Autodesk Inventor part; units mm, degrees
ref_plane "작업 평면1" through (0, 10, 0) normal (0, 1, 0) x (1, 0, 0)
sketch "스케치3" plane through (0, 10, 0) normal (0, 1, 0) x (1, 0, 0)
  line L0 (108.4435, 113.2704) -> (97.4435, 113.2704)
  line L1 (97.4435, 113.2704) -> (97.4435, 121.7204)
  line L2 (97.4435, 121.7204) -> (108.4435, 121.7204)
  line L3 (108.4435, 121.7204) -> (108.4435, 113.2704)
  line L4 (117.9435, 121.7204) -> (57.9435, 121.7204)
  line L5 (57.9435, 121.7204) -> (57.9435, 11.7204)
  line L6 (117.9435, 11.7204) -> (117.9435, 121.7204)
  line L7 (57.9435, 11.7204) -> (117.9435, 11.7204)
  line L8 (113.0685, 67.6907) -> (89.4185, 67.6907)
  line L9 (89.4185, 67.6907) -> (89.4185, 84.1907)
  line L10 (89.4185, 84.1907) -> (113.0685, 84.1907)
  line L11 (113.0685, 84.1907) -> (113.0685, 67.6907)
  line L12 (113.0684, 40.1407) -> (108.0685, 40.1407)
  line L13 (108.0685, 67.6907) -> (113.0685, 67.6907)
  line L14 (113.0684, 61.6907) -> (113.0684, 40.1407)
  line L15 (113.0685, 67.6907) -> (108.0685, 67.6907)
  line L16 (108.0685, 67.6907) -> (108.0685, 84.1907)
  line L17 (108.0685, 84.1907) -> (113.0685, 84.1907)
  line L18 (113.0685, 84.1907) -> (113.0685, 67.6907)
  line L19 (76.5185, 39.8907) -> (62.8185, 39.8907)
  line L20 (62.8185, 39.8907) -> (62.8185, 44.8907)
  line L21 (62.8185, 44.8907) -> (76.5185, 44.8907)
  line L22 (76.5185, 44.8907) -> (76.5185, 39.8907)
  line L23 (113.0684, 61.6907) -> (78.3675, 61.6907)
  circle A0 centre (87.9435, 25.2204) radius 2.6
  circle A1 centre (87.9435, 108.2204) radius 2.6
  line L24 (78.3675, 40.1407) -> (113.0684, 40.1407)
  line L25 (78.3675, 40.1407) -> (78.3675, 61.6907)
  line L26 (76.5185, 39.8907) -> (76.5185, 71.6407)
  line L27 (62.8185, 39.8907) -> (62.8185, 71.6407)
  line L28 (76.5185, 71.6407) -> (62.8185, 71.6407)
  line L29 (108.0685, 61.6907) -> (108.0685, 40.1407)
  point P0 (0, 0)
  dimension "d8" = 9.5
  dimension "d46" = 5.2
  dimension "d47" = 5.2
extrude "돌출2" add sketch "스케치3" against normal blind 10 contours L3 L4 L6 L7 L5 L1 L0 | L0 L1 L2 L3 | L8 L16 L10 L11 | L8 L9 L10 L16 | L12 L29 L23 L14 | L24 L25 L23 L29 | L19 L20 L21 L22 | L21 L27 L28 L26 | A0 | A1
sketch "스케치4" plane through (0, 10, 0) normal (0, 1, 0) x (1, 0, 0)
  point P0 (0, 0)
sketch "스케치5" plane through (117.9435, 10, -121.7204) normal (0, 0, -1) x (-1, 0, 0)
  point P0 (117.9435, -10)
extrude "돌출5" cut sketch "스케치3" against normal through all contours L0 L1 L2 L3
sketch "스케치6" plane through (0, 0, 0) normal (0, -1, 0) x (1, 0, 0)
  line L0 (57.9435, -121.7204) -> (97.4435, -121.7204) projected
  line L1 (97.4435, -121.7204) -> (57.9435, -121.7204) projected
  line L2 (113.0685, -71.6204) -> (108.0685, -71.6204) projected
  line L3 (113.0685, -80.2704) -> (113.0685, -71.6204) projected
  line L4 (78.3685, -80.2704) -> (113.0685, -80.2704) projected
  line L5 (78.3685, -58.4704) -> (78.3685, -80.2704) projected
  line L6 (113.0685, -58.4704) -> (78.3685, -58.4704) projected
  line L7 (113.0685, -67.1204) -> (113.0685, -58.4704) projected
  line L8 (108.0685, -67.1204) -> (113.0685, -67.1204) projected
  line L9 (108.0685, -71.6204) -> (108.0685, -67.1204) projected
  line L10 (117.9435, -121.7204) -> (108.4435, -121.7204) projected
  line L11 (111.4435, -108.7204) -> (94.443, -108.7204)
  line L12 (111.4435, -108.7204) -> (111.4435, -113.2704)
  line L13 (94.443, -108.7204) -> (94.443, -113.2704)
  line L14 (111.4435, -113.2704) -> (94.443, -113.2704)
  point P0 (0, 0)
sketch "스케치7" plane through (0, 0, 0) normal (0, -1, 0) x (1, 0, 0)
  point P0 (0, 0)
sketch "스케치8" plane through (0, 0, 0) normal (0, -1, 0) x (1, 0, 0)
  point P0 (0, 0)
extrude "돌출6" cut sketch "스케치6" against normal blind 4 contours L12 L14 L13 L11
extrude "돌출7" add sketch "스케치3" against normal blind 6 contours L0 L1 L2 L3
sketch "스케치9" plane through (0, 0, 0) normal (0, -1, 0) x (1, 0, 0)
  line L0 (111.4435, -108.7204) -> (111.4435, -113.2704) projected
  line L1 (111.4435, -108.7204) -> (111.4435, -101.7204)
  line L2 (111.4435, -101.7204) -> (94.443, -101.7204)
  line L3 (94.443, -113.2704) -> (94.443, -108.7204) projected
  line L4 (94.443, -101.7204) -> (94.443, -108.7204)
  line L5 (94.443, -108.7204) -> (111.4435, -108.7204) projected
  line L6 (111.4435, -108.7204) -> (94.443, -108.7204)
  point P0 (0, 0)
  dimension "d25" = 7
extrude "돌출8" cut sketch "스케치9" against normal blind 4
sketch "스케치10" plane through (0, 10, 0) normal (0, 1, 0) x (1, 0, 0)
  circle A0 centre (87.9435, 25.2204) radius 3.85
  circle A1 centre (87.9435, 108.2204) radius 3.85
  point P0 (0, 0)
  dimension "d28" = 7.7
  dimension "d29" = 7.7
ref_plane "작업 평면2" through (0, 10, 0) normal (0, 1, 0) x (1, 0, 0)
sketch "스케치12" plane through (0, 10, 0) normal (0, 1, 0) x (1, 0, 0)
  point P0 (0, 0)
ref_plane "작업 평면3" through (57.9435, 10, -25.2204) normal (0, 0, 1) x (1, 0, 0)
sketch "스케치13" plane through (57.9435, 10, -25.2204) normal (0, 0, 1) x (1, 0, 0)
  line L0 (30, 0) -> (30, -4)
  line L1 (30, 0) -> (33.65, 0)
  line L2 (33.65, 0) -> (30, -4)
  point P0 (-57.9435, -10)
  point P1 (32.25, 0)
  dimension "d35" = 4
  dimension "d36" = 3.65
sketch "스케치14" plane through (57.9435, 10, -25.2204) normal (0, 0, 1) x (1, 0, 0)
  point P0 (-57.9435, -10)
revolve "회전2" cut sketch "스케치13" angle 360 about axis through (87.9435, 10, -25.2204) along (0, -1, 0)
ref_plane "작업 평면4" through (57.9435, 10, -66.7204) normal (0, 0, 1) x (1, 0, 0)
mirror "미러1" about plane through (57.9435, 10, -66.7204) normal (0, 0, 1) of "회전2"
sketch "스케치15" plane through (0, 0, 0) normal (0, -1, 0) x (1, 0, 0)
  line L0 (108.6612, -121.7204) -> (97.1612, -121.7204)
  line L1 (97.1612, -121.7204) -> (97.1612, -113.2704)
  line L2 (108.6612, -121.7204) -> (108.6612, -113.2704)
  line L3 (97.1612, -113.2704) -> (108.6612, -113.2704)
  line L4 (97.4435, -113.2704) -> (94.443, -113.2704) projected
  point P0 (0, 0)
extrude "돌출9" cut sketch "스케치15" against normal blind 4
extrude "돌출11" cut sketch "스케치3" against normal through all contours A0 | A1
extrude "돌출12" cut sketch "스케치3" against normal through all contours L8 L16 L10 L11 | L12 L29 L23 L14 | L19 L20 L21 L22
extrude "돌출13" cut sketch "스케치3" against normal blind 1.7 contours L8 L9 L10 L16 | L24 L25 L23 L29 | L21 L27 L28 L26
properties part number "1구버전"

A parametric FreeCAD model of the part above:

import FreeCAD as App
import Part
import Sketcher
from FreeCAD import Vector


def add_polygon(sketch, points):
    """Adds a closed chain of lines whose ends are joined by coincident constraints."""
    first, n = sketch.GeometryCount, len(points)
    for a, b in zip(points, points[1:] + points[:1]):
        sketch.addGeometry(Part.LineSegment(App.Vector(*a, 0), App.Vector(*b, 0)), False)
    for i in range(n):
        sketch.addConstraint(Sketcher.Constraint("Coincident", first + i, 2, first + (i + 1) % n, 1))

doc = App.newDocument("Part")
body = doc.addObject("PartDesign::Body", "Body")

sketch1 = body.newObject("Sketcher::SketchObject", "Sketch")
sketch1.AttachmentSupport = (doc.getObject("XZ_Plane"), [""])
sketch1.MapMode = "FlatFace"
sketch1.AttachmentOffset = App.Placement(Vector(0, 0, -10), App.Rotation())
add_polygon(sketch1, [(118, -122), (58, -122), (58, -12), (118, -12)])
sketch1.addConstraint([
    Sketcher.Constraint("Horizontal", 0),
    Sketcher.Constraint("Vertical", 1),
    Sketcher.Constraint("Horizontal", 2),
    Sketcher.Constraint("Vertical", 3),
    Sketcher.Constraint("DistanceX", 0, 2, 0, 1, 60.0),
    Sketcher.Constraint("DistanceY", 1, 1, 1, 2, 110.0),
    Sketcher.Constraint("DistanceX", -1, 1, 0, 2, 57.9435),
    Sketcher.Constraint("DistanceY", 0, 2, -1, 1, 121.7204),
])
pad1 = body.newObject("PartDesign::Pad", "Pad")
pad1.Profile = sketch1
pad1.Length = 10

sketch2 = body.newObject("Sketcher::SketchObject", "Sketch001")
sketch2.AttachmentSupport = (doc.getObject("XZ_Plane"), [""])
sketch2.MapMode = "FlatFace"
sketch2.AttachmentOffset = App.Placement(Vector(0, 0, -10), App.Rotation())
add_polygon(sketch2, [(97, -113), (108, -113), (108, -122), (97, -122)])
sketch2.addConstraint([
    Sketcher.Constraint("Horizontal", 0),
    Sketcher.Constraint("Vertical", 1),
    Sketcher.Constraint("Horizontal", 2),
    Sketcher.Constraint("Vertical", 3),
    Sketcher.Constraint("DistanceX", 0, 1, 0, 2, 11.0),
    Sketcher.Constraint("DistanceY", 1, 2, 1, 1, 8.45),
    Sketcher.Constraint("DistanceX", -1, 1, 0, 2, 108.4435),
    Sketcher.Constraint("DistanceY", 0, 2, -1, 1, 113.2704),
])
pocket1 = body.newObject("PartDesign::Pocket", "Pocket")
pocket1.Profile = sketch2
pocket1.Type = "ThroughAll"
pocket1.Reversed = True

sketch3 = body.newObject("Sketcher::SketchObject", "Sketch002")
sketch3.AttachmentSupport = (doc.getObject("XZ_Plane"), [""])
sketch3.MapMode = "FlatFace"
add_polygon(sketch3, [(111.4, -113.3), (111.4, -108.7), (94.4, -108.7), (94.4, -113.3)])
sketch3.addConstraint([
    Sketcher.Constraint("Vertical", 0),
    Sketcher.Constraint("Horizontal", 1),
    Sketcher.Constraint("Vertical", 2),
    Sketcher.Constraint("Horizontal", 3),
    Sketcher.Constraint("DistanceY", 0, 1, 0, 2, 4.55),
    Sketcher.Constraint("DistanceX", 1, 2, 1, 1, 17.0005),
    Sketcher.Constraint("DistanceX", -1, 1, 1, 2, 94.443),
    Sketcher.Constraint("DistanceY", 0, 2, -1, 1, 108.7204),
])
pocket2 = body.newObject("PartDesign::Pocket", "Pocket001")
pocket2.Profile = sketch3
pocket2.Length = 4

sketch4 = body.newObject("Sketcher::SketchObject", "Sketch003")
sketch4.AttachmentSupport = (doc.getObject("XZ_Plane"), [""])
sketch4.MapMode = "FlatFace"
sketch4.AttachmentOffset = App.Placement(Vector(0, 0, -10), App.Rotation())
add_polygon(sketch4, [(97, -113), (108, -113), (108, -122), (97, -122)])
sketch4.addConstraint([
    Sketcher.Constraint("Horizontal", 0),
    Sketcher.Constraint("Vertical", 1),
    Sketcher.Constraint("Horizontal", 2),
    Sketcher.Constraint("Vertical", 3),
    Sketcher.Constraint("DistanceX", 0, 1, 0, 2, 11.0),
    Sketcher.Constraint("DistanceY", 1, 2, 1, 1, 8.45),
    Sketcher.Constraint("DistanceX", -1, 1, 0, 2, 108.4435),
    Sketcher.Constraint("DistanceY", 0, 2, -1, 1, 113.2704),
])
pad2 = body.newObject("PartDesign::Pad", "Pad001")
pad2.Profile = sketch4
pad2.Length = 6

sketch5 = body.newObject("Sketcher::SketchObject", "Sketch004")
sketch5.AttachmentSupport = (doc.getObject("XZ_Plane"), [""])
sketch5.MapMode = "FlatFace"
add_polygon(sketch5, [(94, -109), (111, -109), (111, -102), (94, -102)])
sketch5.addConstraint([
    Sketcher.Constraint("Horizontal", 0),
    Sketcher.Constraint("Vertical", 1),
    Sketcher.Constraint("Horizontal", 2),
    Sketcher.Constraint("Vertical", 3),
    Sketcher.Constraint("DistanceY", 1, 1, 1, 2, 7.0),
    Sketcher.Constraint("DistanceX", 0, 1, 0, 2, 17.0005),
    Sketcher.Constraint("DistanceX", -1, 1, 2, 2, 94.443),
    Sketcher.Constraint("DistanceY", 0, 2, -1, 1, 108.7204),
])
pocket3 = body.newObject("PartDesign::Pocket", "Pocket002")
pocket3.Profile = sketch5
pocket3.Length = 4

sketch6 = body.newObject("Sketcher::SketchObject", "Sketch005")
sketch6.AttachmentSupport = (doc.getObject("XY_Plane"), [""])
sketch6.MapMode = "FlatFace"
sketch6.AttachmentOffset = App.Placement(Vector(0, 0, -25.2204), App.Rotation())
add_polygon(sketch6, [(91.6, 10), (87.9, 10), (87.9, 6)])
sketch6.addGeometry(Part.LineSegment(Vector(87.9, 10, 0), Vector(87.9, 6, 0)), True)
sketch6.addConstraint([
    Sketcher.Constraint("Horizontal", 0),
    Sketcher.Constraint("Vertical", 1),
    Sketcher.Constraint("Vertical", 3),
    Sketcher.Constraint("Coincident", 3, 1, 0, 2),
    Sketcher.Constraint("Equal", 1, 3),
    Sketcher.Constraint("DistanceY", 1, 2, 1, 1, 4.0),
    Sketcher.Constraint("DistanceX", 0, 2, 0, 1, 3.65),
    Sketcher.Constraint("DistanceY", -1, 1, 0, 2, 10.0),
    Sketcher.Constraint("DistanceX", -1, 1, 0, 2, 87.9435),
])
groove = body.newObject("PartDesign::Groove", "Groove")
groove.Profile = sketch6
groove.ReferenceAxis = (sketch6, ["Axis0"])
groove.Angle = 360
doc.recompute()

datumplane = body.newObject("PartDesign::Plane", "DatumPlane")
datumplane.AttachmentSupport = (doc.getObject("XY_Plane"), [""])
datumplane.MapMode = "FlatFace"
datumplane.AttachmentOffset = App.Placement(Vector(0, 0, -66.7204), App.Rotation())
mirrored = body.newObject("PartDesign::Mirrored", "Mirrored")
mirrored.Originals = [groove]
mirrored.MirrorPlane = (datumplane, [""])
body.Tip = mirrored

sketch7 = body.newObject("Sketcher::SketchObject", "Sketch006")
sketch7.AttachmentSupport = (doc.getObject("XZ_Plane"), [""])
sketch7.MapMode = "FlatFace"
add_polygon(sketch7, [(97, -122), (109, -122), (109, -113), (97, -113)])
sketch7.addConstraint([
    Sketcher.Constraint("Horizontal", 0),
    Sketcher.Constraint("Vertical", 1),
    Sketcher.Constraint("Horizontal", 2),
    Sketcher.Constraint("Vertical", 3),
    Sketcher.Constraint("DistanceX", 0, 1, 0, 2, 11.5),
    Sketcher.Constraint("DistanceY", 1, 1, 1, 2, 8.45),
    Sketcher.Constraint("DistanceX", -1, 1, 0, 2, 108.6612),
    Sketcher.Constraint("DistanceY", 0, 2, -1, 1, 121.7204),
])
pocket4 = body.newObject("PartDesign::Pocket", "Pocket003")
pocket4.Profile = sketch7
pocket4.Length = 4

sketch8 = body.newObject("Sketcher::SketchObject", "Sketch007")
sketch8.AttachmentSupport = (doc.getObject("XZ_Plane"), [""])
sketch8.MapMode = "FlatFace"
sketch8.AttachmentOffset = App.Placement(Vector(0, 0, -10), App.Rotation())
sketch8.addGeometry([
    Part.Circle(Vector(87.9, -25.2, 0), Vector(0, 0, 1), 2.6),
    Part.Circle(Vector(87.9, -108.2, 0), Vector(0, 0, 1), 2.6),
], False)
sketch8.addConstraint([
    Sketcher.Constraint("Equal", 0, 1),
    Sketcher.Constraint("Vertical", 0, 3, 1, 3),
    Sketcher.Constraint("Diameter", 0, 5.2),
    Sketcher.Constraint("DistanceY", 1, 3, 0, 3, 83.0),
    Sketcher.Constraint("DistanceX", -1, 1, 0, 3, 87.9435),
    Sketcher.Constraint("DistanceY", 0, 3, -1, 1, 25.2204),
])
pocket5 = body.newObject("PartDesign::Pocket", "Pocket004")
pocket5.Profile = sketch8
pocket5.Type = "ThroughAll"
pocket5.Reversed = True

sketch9 = body.newObject("Sketcher::SketchObject", "Sketch008")
sketch9.AttachmentSupport = (doc.getObject("XZ_Plane"), [""])
sketch9.MapMode = "FlatFace"
sketch9.AttachmentOffset = App.Placement(Vector(0, 0, -10), App.Rotation())
add_polygon(sketch9, [(108.1, -67.7), (113.1, -67.7), (113.1, -84.2), (108.1, -84.2)])
add_polygon(sketch9, [(108.1, -40.1), (113.1, -40.1), (113.1, -61.7), (108.1, -61.7)])
add_polygon(sketch9, [(62.8, -39.9), (76.5, -39.9), (76.5, -44.9), (62.8, -44.9)])
sketch9.addConstraint([
    Sketcher.Constraint("Horizontal", 0),
    Sketcher.Constraint("Vertical", 1),
    Sketcher.Constraint("Horizontal", 2),
    Sketcher.Constraint("Vertical", 3),
    Sketcher.Constraint("Horizontal", 4),
    Sketcher.Constraint("Vertical", 5),
    Sketcher.Constraint("Horizontal", 6),
    Sketcher.Constraint("Vertical", 7),
    Sketcher.Constraint("Horizontal", 8),
    Sketcher.Constraint("Vertical", 9),
    Sketcher.Constraint("Horizontal", 10),
    Sketcher.Constraint("Vertical", 11),
    Sketcher.Constraint("Vertical", 1, 2, 4, 2),
    Sketcher.Constraint("Vertical", 3, 2, 6, 2),
    Sketcher.Constraint("Equal", 6, 9),
    Sketcher.Constraint("DistanceX", 0, 1, 0, 2, 5.0),
    Sketcher.Constraint("DistanceX", 8, 1, 8, 2, 13.7),
    Sketcher.Constraint("DistanceY", 1, 2, 1, 1, 16.5),
    Sketcher.Constraint("DistanceY", 0, 2, 5, 2, 6.0),
    Sketcher.Constraint("DistanceY", 5, 2, 5, 1, 21.55),
    Sketcher.Constraint("DistanceY", 6, 2, 8, 2, 21.8),
    Sketcher.Constraint("DistanceX", 8, 2, 7, 2, 31.55),
    Sketcher.Constraint("DistanceX", -1, 1, 0, 2, 113.0685),
    Sketcher.Constraint("DistanceY", 0, 2, -1, 1, 67.6907),
])
pocket6 = body.newObject("PartDesign::Pocket", "Pocket005")
pocket6.Profile = sketch9
pocket6.Type = "ThroughAll"
pocket6.Reversed = True

sketch10 = body.newObject("Sketcher::SketchObject", "Sketch009")
sketch10.AttachmentSupport = (doc.getObject("XZ_Plane"), [""])
sketch10.MapMode = "FlatFace"
sketch10.AttachmentOffset = App.Placement(Vector(0, 0, -10), App.Rotation())
add_polygon(sketch10, [(89, -68), (108, -68), (108, -84), (89, -84)])
add_polygon(sketch10, [(78, -40), (108, -40), (108, -62), (78, -62)])
add_polygon(sketch10, [(63, -45), (77, -45), (77, -72), (63, -72)])
sketch10.addConstraint([
    Sketcher.Constraint("Horizontal", 0),
    Sketcher.Constraint("Vertical", 1),
    Sketcher.Constraint("Horizontal", 2),
    Sketcher.Constraint("Vertical", 3),
    Sketcher.Constraint("Horizontal", 4),
    Sketcher.Constraint("Vertical", 5),
    Sketcher.Constraint("Horizontal", 6),
    Sketcher.Constraint("Vertical", 7),
    Sketcher.Constraint("Horizontal", 8),
    Sketcher.Constraint("Vertical", 9),
    Sketcher.Constraint("Horizontal", 10),
    Sketcher.Constraint("Vertical", 11),
    Sketcher.Constraint("Vertical", 1, 2, 4, 2),
    Sketcher.Constraint("DistanceX", 8, 1, 8, 2, 13.7),
    Sketcher.Constraint("DistanceY", 1, 2, 1, 1, 16.5),
    Sketcher.Constraint("DistanceY", 0, 2, 5, 2, 6.0),
    Sketcher.Constraint("DistanceX", 0, 1, 0, 2, 18.65),
    Sketcher.Constraint("DistanceY", 5, 2, 5, 1, 21.55),
    Sketcher.Constraint("DistanceY", 9, 2, 9, 1, 26.75),
    Sketcher.Constraint("DistanceY", 6, 2, 8, 2, 16.8),
    Sketcher.Constraint("DistanceX", 8, 2, 3, 2, 12.9),
    Sketcher.Constraint("DistanceX", 4, 1, 4, 2, 29.701),
    Sketcher.Constraint("DistanceX", -1, 1, 0, 2, 108.0685),
    Sketcher.Constraint("DistanceY", 0, 2, -1, 1, 67.6907),
])
pocket7 = body.newObject("PartDesign::Pocket", "Pocket006")
pocket7.Profile = sketch10
pocket7.Length = 1.7
pocket7.Reversed = True

doc.recompute()
